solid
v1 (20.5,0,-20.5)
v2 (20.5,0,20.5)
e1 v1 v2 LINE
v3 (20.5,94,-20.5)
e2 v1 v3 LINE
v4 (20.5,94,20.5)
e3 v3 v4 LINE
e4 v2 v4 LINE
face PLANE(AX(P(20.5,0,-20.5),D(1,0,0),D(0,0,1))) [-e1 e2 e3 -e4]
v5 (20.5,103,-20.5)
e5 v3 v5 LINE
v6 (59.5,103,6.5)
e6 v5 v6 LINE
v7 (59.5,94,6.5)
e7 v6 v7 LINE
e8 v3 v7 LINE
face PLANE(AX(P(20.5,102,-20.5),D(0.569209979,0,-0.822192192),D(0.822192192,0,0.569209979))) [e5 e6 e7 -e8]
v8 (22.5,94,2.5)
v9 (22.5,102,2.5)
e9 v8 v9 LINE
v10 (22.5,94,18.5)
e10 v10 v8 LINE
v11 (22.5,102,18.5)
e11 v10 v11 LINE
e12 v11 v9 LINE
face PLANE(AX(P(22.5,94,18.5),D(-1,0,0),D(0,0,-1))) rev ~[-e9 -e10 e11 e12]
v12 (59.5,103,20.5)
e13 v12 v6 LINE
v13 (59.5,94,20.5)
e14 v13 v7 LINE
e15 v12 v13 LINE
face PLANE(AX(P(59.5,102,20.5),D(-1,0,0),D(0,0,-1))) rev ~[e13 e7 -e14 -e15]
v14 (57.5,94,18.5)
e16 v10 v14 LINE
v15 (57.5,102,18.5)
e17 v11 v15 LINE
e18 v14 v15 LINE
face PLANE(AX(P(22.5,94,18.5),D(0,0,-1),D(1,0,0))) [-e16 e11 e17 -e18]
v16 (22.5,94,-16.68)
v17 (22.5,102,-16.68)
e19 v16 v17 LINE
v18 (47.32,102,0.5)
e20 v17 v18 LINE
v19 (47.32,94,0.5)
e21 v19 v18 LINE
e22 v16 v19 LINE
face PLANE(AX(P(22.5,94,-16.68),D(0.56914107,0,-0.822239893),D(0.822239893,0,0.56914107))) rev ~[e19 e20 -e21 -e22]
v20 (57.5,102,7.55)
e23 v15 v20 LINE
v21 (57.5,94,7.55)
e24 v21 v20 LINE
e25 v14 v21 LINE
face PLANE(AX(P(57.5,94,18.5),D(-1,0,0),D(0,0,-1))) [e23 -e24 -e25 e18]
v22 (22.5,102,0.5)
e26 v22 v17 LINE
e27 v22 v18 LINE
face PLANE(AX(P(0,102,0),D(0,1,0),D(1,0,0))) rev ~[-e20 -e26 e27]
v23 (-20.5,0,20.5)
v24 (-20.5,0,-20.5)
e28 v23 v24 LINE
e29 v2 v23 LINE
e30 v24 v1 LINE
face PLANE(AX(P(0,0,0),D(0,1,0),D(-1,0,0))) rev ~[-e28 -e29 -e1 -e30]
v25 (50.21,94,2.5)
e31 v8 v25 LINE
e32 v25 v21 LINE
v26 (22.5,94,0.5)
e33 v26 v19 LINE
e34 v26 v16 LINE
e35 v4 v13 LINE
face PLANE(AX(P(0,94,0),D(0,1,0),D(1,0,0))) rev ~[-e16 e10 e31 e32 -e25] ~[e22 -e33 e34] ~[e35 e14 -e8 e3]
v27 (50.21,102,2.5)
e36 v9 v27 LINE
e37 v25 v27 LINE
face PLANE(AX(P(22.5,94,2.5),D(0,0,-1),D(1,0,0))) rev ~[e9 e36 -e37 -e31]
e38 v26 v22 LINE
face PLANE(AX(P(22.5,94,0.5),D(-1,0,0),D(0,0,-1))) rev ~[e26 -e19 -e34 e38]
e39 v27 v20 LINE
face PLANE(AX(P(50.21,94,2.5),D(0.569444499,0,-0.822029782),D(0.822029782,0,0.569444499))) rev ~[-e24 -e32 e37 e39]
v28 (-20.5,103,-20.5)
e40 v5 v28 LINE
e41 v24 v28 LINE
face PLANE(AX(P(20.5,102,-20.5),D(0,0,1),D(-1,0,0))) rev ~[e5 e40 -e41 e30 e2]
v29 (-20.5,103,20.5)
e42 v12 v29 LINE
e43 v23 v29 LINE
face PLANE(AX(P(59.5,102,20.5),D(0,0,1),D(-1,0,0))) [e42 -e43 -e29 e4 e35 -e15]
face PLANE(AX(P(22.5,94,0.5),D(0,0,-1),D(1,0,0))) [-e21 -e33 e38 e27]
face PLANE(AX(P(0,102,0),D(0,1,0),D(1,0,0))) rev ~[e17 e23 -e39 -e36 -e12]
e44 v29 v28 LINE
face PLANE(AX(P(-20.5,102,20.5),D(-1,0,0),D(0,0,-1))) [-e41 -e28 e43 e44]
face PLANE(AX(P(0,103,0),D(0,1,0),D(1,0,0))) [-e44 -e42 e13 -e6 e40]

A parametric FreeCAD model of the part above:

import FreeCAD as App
import Part
import Sketcher
from FreeCAD import Vector
Q = App.Units.Quantity

doc = App.newDocument("Part")
body = doc.addObject("PartDesign::Body", "Body")
body.AllowCompound = True

sketch1 = body.newObject("Sketcher::SketchObject", "Sketch")
sketch1.AttachmentSupport = (doc.getObject("XZ_Plane"), [""])
sketch1.MapMode = "FlatFace"
sketch1.addGeometry([
    Part.LineSegment(Vector(20, -20, 0), Vector(-20, -20, 0)),
    Part.LineSegment(Vector(-20, -20, 0), Vector(-20, 20, 0)),
    Part.LineSegment(Vector(-20, 20, 0), Vector(20, 20, 0)),
    Part.LineSegment(Vector(20, 20, 0), Vector(20, -20, 0)),
], False)
sketch1.addConstraint([
    Sketcher.Constraint("Coincident", 0, 2, 1, 1),
    Sketcher.Constraint("Coincident", 1, 2, 2, 1),
    Sketcher.Constraint("Coincident", 2, 2, 3, 1),
    Sketcher.Constraint("Coincident", 3, 2, 0, 1),
    Sketcher.Constraint("Horizontal", 0),
    Sketcher.Constraint("Vertical", 1),
    Sketcher.Constraint("Horizontal", 2),
    Sketcher.Constraint("Vertical", 3),
    Sketcher.Constraint("Symmetric", 0, 2, 2, 2, -1, 1),
    Sketcher.Constraint("Equal", 2, 1),
    Sketcher.Constraint("DistanceX", 0, 2, 0, 1, Q("41 mm")),
])
pad1 = body.newObject("PartDesign::Pad", "Pad")
pad1.Profile = sketch1
pad1.Length = 94
pad1.Reversed = True

sketch2 = body.newObject("Sketcher::SketchObject", "Sketch001")
sketch2.AttachmentSupport = (doc.getObject("XZ_Plane"), [""])
sketch2.MapMode = "FlatFace"
sketch2.AttachmentOffset = App.Placement(Vector(0, 0, -94), App.Rotation())
sketch2.addGeometry([
    Part.LineSegment(Vector(59.5, 6.5, 0), Vector(20.5, -20.5, 0)),
    Part.LineSegment(Vector(20.5, -20.5, 0), Vector(20.5, 20.5, 0)),
    Part.LineSegment(Vector(20.5, 20.5, 0), Vector(59.5, 20.5, 0)),
    Part.LineSegment(Vector(59.5, 20.5, 0), Vector(59.5, 6.5, 0)),
    Part.LineSegment(Vector(57.5, 18.5, 0), Vector(22.5, 18.5, 0)),
    Part.LineSegment(Vector(22.5, 18.5, 0), Vector(22.5, 2.5, 0)),
    Part.LineSegment(Vector(22.5, 2.5, 0), Vector(50.21, 2.5, 0)),
    Part.LineSegment(Vector(50.21, 2.5, 0), Vector(57.5, 7.55, 0)),
    Part.LineSegment(Vector(57.5, 7.55, 0), Vector(57.5, 18.5, 0)),
    Part.LineSegment(Vector(47.32, 0.5, 0), Vector(22.5, 0.5, 0)),
    Part.LineSegment(Vector(22.5, 0.5, 0), Vector(22.5, -16.68, 0)),
    Part.LineSegment(Vector(22.5, -16.68, 0), Vector(47.32, 0.5, 0)),
], False)
sketch2.addConstraint([
    Sketcher.Constraint("Coincident", 0, 2, 1, 1),
    Sketcher.Constraint("Coincident", 1, 2, 2, 1),
    Sketcher.Constraint("Coincident", 2, 2, 3, 1),
    Sketcher.Constraint("Coincident", 3, 2, 0, 1),
    Sketcher.Constraint("Coincident", 4, 2, 5, 1),
    Sketcher.Constraint("Coincident", 5, 2, 6, 1),
    Sketcher.Constraint("Coincident", 6, 2, 7, 1),
    Sketcher.Constraint("Coincident", 7, 2, 8, 1),
    Sketcher.Constraint("Coincident", 8, 2, 4, 1),
    Sketcher.Constraint("Coincident", 9, 2, 10, 1),
    Sketcher.Constraint("Coincident", 10, 2, 11, 1),
    Sketcher.Constraint("Coincident", 11, 2, 9, 1),
    Sketcher.Constraint("Vertical", 1),
    Sketcher.Constraint("Horizontal", 2),
    Sketcher.Constraint("Vertical", 3),
    Sketcher.Constraint("Horizontal", 4),
    Sketcher.Constraint("Vertical", 5),
    Sketcher.Constraint("Horizontal", 6),
    Sketcher.Constraint("Vertical", 8),
    Sketcher.Constraint("Horizontal", 9),
    Sketcher.Constraint("Vertical", 10),
    Sketcher.Constraint("DistanceX", 2, 1, 2, 2, Q("39 mm")),
    Sketcher.Constraint("DistanceX", 4, 2, 4, 1, Q("35 mm")),
    Sketcher.Constraint("DistanceY", 3, 2, 3, 1, Q("14 mm")),
    Sketcher.Constraint("DistanceY", 5, 2, 5, 1, Q("16 mm")),
    Sketcher.Constraint("DistanceX", 1, 2, 4, 2, Q("2 mm")),
    Sketcher.Constraint("DistanceY", 4, 2, 1, 2, Q("2 mm")),
    Sketcher.Constraint("DistanceY", 0, 2, 4, 2, Q("39 mm")),
    Sketcher.Constraint("DistanceY", 9, 2, 5, 2, Q("2 mm")),
    Sketcher.Constraint("DistanceX", 1, 2, 9, 2, Q("2 mm")),
    Sketcher.Constraint("DistanceX", 6, 1, 6, 2, Q("27.71 mm")),
    Sketcher.Constraint("DistanceX", 9, 2, 9, 1, Q("24.82 mm")),
    Sketcher.Constraint("DistanceY", 8, 1, 8, 2, Q("10.95 mm")),
    Sketcher.Constraint("DistanceY", 10, 2, 10, 1, Q("17.18 mm")),
    Sketcher.Constraint("DistanceX", -1, 1, 0, 2, Q("20.5 mm")),
    Sketcher.Constraint("DistanceY", 0, 2, -1, 1, Q("20.5 mm")),
])
pad2 = body.newObject("PartDesign::Pad", "Pad001")
pad2.Profile = sketch2
pad2.Length = 8
pad2.Reversed = True

sketch3 = body.newObject("Sketcher::SketchObject", "Sketch002")
sketch3.AttachmentSupport = (doc.getObject("XZ_Plane"), [""])
sketch3.MapMode = "FlatFace"
sketch3.AttachmentOffset = App.Placement(Vector(0, 0, -94), App.Rotation())
sketch3.addGeometry([
    Part.LineSegment(Vector(20, 20, 0), Vector(20, -20, 0)),
    Part.LineSegment(Vector(20, -20, 0), Vector(-20, -20, 0)),
    Part.LineSegment(Vector(-20, -20, 0), Vector(-20, 20, 0)),
    Part.LineSegment(Vector(-20, 20, 0), Vector(20, 20, 0)),
], False)
sketch3.addConstraint([
    Sketcher.Constraint("Coincident", 0, 2, 1, 1),
    Sketcher.Constraint("Coincident", 1, 2, 2, 1),
    Sketcher.Constraint("Coincident", 2, 2, 3, 1),
    Sketcher.Constraint("Coincident", 3, 2, 0, 1),
    Sketcher.Constraint("Vertical", 0),
    Sketcher.Constraint("Horizontal", 1),
    Sketcher.Constraint("Vertical", 2),
    Sketcher.Constraint("Horizontal", 3),
    Sketcher.Constraint("Symmetric", 0, 2, 2, 2, -1, 1),
    Sketcher.Constraint("Equal", 3, 0),
    Sketcher.Constraint("DistanceX", 1, 2, 1, 1, Q("41 mm")),
])
pad3 = body.newObject("PartDesign::Pad", "Pad002")
pad3.Profile = sketch3
pad3.Length = 8
pad3.Reversed = True

sketch4 = body.newObject("Sketcher::SketchObject", "Sketch003")
sketch4.AttachmentSupport = (doc.getObject("XZ_Plane"), [""])
sketch4.MapMode = "FlatFace"
sketch4.AttachmentOffset = App.Placement(Vector(0, 0, -102), App.Rotation())
sketch4.addGeometry([
    Part.LineSegment(Vector(60, 6, 0), Vector(20, -20, 0)),
    Part.LineSegment(Vector(20, -20, 0), Vector(-20, -20, 0)),
    Part.LineSegment(Vector(-20, -20, 0), Vector(-20, 20, 0)),
    Part.LineSegment(Vector(-20, 20, 0), Vector(60, 20, 0)),
    Part.LineSegment(Vector(60, 20, 0), Vector(60, 6, 0)),
], False)
sketch4.addConstraint([
    Sketcher.Constraint("Coincident", 0, 2, 1, 1),
    Sketcher.Constraint("Coincident", 1, 2, 2, 1),
    Sketcher.Constraint("Coincident", 2, 2, 3, 1),
    Sketcher.Constraint("Coincident", 3, 2, 4, 1),
    Sketcher.Constraint("Coincident", 4, 2, 0, 1),
    Sketcher.Constraint("Horizontal", 1),
    Sketcher.Constraint("Vertical", 2),
    Sketcher.Constraint("Horizontal", 3),
    Sketcher.Constraint("Vertical", 4),
    Sketcher.Constraint("Symmetric", 0, 2, 2, 2, -1, 1),
    Sketcher.Constraint("Equal", 1, 2),
    Sketcher.Constraint("DistanceX", 1, 2, 1, 1, Q("41 mm")),
    Sketcher.Constraint("DistanceX", 3, 1, 3, 2, Q("80 mm")),
    Sketcher.Constraint("DistanceY", 4, 2, 4, 1, Q("14 mm")),
])
pad4 = body.newObject("PartDesign::Pad", "Pad003")
pad4.Profile = sketch4
pad4.Length = 1
pad4.Reversed = True

doc.recompute()
